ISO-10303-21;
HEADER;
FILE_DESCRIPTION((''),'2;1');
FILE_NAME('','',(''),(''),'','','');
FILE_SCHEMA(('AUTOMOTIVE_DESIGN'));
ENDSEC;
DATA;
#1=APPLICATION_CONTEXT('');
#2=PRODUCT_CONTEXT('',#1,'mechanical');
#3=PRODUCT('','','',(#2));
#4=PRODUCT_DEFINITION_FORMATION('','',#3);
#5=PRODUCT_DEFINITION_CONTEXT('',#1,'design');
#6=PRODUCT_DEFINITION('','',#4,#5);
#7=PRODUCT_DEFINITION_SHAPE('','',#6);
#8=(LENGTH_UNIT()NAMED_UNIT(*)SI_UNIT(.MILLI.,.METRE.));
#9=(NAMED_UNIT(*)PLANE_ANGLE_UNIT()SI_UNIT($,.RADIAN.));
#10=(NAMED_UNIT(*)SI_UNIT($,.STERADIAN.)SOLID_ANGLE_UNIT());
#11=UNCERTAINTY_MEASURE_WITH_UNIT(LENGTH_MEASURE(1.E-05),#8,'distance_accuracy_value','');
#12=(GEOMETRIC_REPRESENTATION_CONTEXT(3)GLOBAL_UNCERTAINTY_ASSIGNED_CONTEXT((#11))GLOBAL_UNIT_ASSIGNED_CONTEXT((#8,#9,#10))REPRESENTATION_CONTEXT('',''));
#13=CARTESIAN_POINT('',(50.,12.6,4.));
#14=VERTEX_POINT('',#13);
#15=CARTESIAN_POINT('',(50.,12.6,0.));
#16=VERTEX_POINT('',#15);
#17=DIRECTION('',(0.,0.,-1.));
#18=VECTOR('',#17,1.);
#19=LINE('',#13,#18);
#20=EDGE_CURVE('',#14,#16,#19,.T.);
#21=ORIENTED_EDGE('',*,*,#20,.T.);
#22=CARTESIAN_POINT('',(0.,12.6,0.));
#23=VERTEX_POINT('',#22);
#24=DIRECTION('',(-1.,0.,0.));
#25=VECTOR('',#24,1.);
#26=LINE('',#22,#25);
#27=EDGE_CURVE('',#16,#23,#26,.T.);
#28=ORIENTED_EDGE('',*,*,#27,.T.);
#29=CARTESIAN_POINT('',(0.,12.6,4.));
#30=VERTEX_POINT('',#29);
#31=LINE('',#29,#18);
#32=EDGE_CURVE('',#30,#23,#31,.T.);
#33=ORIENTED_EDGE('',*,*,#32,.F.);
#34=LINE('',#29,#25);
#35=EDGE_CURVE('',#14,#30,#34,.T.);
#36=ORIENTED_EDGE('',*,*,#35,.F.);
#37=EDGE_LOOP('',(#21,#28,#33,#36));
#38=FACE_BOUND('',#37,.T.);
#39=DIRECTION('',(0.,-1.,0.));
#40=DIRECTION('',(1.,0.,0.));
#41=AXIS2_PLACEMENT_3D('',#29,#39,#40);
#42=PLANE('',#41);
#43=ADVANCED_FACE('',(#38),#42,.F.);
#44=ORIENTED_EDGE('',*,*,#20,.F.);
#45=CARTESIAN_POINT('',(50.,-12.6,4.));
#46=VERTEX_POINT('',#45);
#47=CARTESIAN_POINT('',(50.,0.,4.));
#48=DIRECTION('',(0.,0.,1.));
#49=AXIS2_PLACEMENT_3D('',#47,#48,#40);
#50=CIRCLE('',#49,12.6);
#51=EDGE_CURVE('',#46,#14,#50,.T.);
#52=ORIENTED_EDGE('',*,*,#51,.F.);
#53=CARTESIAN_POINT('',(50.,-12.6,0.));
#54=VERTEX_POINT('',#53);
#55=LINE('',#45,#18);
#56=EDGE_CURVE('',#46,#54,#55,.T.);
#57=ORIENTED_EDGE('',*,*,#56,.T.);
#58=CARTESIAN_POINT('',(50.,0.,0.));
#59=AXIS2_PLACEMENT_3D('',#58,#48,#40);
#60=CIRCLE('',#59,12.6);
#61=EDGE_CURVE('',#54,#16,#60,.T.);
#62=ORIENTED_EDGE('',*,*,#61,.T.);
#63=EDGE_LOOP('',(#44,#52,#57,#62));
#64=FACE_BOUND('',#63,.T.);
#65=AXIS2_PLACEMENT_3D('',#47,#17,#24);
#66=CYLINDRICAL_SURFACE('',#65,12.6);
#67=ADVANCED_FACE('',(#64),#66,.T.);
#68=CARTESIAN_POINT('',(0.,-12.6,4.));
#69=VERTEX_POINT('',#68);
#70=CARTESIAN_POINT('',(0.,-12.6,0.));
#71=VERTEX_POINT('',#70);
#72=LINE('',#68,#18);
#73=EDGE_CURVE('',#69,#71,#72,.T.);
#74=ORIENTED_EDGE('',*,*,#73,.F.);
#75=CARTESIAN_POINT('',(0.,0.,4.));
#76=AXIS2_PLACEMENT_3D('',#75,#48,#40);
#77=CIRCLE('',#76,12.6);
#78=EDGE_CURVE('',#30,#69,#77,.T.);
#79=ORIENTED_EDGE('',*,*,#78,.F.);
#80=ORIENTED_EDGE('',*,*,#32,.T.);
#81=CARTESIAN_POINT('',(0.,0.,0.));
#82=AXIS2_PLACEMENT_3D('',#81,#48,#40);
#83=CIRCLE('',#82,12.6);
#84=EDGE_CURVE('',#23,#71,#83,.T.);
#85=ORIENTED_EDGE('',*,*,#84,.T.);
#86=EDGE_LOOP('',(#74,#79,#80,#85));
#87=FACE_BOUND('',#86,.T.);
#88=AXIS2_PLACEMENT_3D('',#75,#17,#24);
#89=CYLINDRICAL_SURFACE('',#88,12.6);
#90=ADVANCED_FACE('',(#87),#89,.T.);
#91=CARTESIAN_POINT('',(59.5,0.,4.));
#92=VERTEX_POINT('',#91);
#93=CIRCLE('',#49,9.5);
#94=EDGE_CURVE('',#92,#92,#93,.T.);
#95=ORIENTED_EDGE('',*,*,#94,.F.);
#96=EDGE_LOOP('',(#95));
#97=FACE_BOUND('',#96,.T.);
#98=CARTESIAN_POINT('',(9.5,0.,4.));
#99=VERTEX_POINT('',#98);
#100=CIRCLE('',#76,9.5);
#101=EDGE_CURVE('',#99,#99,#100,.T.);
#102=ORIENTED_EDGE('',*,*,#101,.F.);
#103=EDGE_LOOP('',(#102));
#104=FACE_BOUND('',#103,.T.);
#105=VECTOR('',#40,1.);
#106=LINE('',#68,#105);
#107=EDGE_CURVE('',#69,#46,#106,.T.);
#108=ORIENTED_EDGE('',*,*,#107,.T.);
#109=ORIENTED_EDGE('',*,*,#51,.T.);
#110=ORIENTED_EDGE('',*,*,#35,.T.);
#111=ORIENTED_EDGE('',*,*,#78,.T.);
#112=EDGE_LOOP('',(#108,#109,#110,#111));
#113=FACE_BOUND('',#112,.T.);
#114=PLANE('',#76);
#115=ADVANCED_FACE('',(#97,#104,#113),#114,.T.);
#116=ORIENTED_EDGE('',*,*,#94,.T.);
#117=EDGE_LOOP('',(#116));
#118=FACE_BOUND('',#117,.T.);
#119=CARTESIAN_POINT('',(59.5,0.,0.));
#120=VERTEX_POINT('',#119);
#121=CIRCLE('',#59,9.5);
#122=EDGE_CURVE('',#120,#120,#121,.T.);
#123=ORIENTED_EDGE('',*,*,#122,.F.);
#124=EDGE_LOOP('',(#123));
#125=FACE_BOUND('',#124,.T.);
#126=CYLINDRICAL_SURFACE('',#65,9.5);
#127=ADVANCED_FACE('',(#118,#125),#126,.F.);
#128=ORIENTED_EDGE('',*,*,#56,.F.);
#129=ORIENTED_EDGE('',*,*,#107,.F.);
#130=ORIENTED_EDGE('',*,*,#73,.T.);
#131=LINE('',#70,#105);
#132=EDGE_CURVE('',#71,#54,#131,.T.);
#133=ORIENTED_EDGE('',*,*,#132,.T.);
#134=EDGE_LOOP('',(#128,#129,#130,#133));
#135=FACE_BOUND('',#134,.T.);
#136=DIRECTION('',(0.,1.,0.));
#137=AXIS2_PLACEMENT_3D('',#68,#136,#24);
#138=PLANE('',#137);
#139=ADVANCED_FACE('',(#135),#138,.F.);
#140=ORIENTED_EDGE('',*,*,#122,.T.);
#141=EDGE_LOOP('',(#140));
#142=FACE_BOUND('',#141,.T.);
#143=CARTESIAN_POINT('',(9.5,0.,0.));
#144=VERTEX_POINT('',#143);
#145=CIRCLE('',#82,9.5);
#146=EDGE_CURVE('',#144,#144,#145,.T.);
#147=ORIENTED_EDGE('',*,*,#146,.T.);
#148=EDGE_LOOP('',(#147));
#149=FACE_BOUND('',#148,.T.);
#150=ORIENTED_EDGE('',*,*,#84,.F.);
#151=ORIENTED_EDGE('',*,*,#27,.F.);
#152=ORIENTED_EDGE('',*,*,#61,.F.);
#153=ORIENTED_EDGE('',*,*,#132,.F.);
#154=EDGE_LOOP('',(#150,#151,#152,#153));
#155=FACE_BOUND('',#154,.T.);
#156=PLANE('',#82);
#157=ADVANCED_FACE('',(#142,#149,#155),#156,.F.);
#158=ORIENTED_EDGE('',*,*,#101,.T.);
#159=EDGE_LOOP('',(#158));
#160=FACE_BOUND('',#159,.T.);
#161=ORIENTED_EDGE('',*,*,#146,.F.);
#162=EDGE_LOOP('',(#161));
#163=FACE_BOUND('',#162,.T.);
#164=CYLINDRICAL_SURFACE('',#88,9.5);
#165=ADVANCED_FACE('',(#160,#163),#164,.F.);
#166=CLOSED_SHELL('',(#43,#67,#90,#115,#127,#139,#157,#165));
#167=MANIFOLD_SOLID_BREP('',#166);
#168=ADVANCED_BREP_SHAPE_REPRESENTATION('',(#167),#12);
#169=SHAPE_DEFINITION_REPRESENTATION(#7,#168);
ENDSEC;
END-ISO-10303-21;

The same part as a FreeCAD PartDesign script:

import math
import FreeCAD as App
import Part
import Sketcher
from FreeCAD import Vector
Q = App.Units.Quantity

doc = App.newDocument("Part")
body = doc.addObject("PartDesign::Body", "Body")

# Sketch on XY plane
sketch1 = body.newObject("Sketcher::SketchObject", "Sketch")
sketch1.AttachmentSupport = (doc.getObject("XY_Plane"), [""])
sketch1.MapMode = "FlatFace"
sketch1.addGeometry([
    Part.LineSegment(Vector(50, 13, 0), Vector(0, 13, 0)),  # 0
    Part.ArcOfCircle(Part.Circle(Vector(0, 0, 0), Vector(0, 0, 1), 13), math.radians(90), math.radians(270)),  # 1
    Part.LineSegment(Vector(0, -13, 0), Vector(50, -13, 0)),  # 2
    Part.ArcOfCircle(Part.Circle(Vector(50, 0, 0), Vector(0, 0, 1), 13), math.radians(-90), math.radians(90)),  # 3
    Part.Circle(Vector(50, 0, 0), Vector(0, 0, 1), 10),  # 4
    Part.Circle(Vector(0, 0, 0), Vector(0, 0, 1), 10),  # 5
], False)
sketch1.addConstraint([
    Sketcher.Constraint("Tangent", 0, 2, 1, 1),
    Sketcher.Constraint("Tangent", 1, 2, 2, 1),
    Sketcher.Constraint("Tangent", 2, 2, 3, 1),
    Sketcher.Constraint("Tangent", 3, 2, 0, 1),
    Sketcher.Constraint("Horizontal", 0),
    Sketcher.Constraint("Horizontal", 2),
    Sketcher.Constraint("Coincident", 1, 3, -1, 1),
    Sketcher.Constraint("Coincident", 5, 3, -1, 1),
    Sketcher.Constraint("Coincident", 4, 3, 3, 3),
    Sketcher.Constraint("Equal", 4, 5),
    Sketcher.Constraint("Diameter", 4, Q("19 mm")),
    Sketcher.Constraint("Radius", 1, Q("12.6 mm")),
    Sketcher.Constraint("DistanceX", 0, 2, 0, 1, Q("50 mm")),
])
pad1 = body.newObject("PartDesign::Pad", "Pad")
pad1.Profile = sketch1
pad1.Length = 4

doc.recompute()
